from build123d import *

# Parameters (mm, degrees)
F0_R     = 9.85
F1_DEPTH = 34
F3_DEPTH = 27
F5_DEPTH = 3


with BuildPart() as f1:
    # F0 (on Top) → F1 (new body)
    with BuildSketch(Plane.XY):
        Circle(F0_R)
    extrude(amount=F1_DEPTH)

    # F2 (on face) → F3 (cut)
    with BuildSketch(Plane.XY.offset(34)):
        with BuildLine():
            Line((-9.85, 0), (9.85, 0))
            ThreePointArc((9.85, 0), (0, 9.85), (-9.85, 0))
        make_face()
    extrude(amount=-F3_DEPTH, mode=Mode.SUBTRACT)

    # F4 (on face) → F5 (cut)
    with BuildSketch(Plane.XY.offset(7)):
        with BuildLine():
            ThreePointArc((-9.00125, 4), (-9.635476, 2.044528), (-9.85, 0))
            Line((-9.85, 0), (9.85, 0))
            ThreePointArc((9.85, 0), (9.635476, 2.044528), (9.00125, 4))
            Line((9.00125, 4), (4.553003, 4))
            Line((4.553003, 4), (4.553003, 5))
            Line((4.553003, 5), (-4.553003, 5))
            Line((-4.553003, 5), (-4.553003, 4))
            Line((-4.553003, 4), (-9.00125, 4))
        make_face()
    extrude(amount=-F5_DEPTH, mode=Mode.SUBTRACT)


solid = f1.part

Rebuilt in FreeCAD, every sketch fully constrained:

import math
import FreeCAD as App
import Part
import Sketcher

V = App.Vector
Q = App.Units.Quantity

doc = App.newDocument("Part")
body = doc.addObject("PartDesign::Body", "Body")

# Sketch on XY plane
sketch1 = body.newObject("Sketcher::SketchObject", "Sketch")
sketch1.AttachmentSupport = (doc.getObject("XY_Plane"), [""])
sketch1.MapMode = "FlatFace"
sketch1.addGeometry(Part.Circle(V(0, 0, 0), V(0, 0, 1), 10), False)
sketch1.addConstraint([
    Sketcher.Constraint("Coincident", 0, 3, -1, 1),
    Sketcher.Constraint("Diameter", 0, Q("19.7 mm")),
])
pad1 = body.newObject("PartDesign::Pad", "Pad")
pad1.Profile = sketch1
pad1.Length = 34

# Sketch on XY plane
sketch2 = body.newObject("Sketcher::SketchObject", "Sketch001")
sketch2.AttachmentSupport = (doc.getObject("XY_Plane"), [""])
sketch2.MapMode = "FlatFace"
sketch2.AttachmentOffset = App.Placement(V(0, 0, 34), App.Rotation())
sketch2.addGeometry([
    Part.LineSegment(V(-10, 0, 0), V(10, 0, 0)),
    Part.ArcOfCircle(Part.Circle(V(0, 0, 0), V(0, 0, 1), 10), math.radians(0), math.radians(180)),
], False)
sketch2.addConstraint([
    Sketcher.Constraint("Coincident", 0, 1, 1, 2),
    Sketcher.Constraint("Coincident", 1, 1, 0, 2),
    Sketcher.Constraint("Horizontal", 0),
    Sketcher.Constraint("Coincident", 1, 3, -1, 1),
    Sketcher.Constraint("PointOnObject", 0, 1, -1),
    Sketcher.Constraint("Radius", 1, Q("9.85 mm")),
])
pocket1 = body.newObject("PartDesign::Pocket", "Pocket")
pocket1.Profile = sketch2
pocket1.Length = 27

# Sketch on XY plane
sketch3 = body.newObject("Sketcher::SketchObject", "Sketch002")
sketch3.AttachmentSupport = (doc.getObject("XY_Plane"), [""])
sketch3.MapMode = "FlatFace"
sketch3.AttachmentOffset = App.Placement(V(0, 0, 7), App.Rotation())
sketch3.addGeometry([
    Part.ArcOfCircle(Part.Circle(V(0.000019, -0.000004, 0), V(0, 0, 1), 9.850019), math.radians(156.040488), math.radians(179.999978)),  # 0
    Part.LineSegment(V(-9.85, 0, 0), V(9.85, 0, 0)),  # 1
    Part.ArcOfCircle(Part.Circle(V(-0.000019, -0.000004, 0), V(0, 0, 1), 9.850019), math.radians(0.000022), math.radians(23.959512)),  # 2
    Part.LineSegment(V(9.00125, 4, 0), V(4.553003, 4, 0)),  # 3
    Part.LineSegment(V(4.553003, 4, 0), V(4.553003, 5, 0)),  # 4
    Part.LineSegment(V(4.553003, 5, 0), V(-4.553003, 5, 0)),  # 5
    Part.LineSegment(V(-4.553003, 5, 0), V(-4.553003, 4, 0)),  # 6
    Part.LineSegment(V(-4.553003, 4, 0), V(-9.00125, 4, 0)),  # 7
], False)
sketch3.addConstraint([
    Sketcher.Constraint("Coincident", 0, 2, 1, 1),
    Sketcher.Constraint("Coincident", 1, 2, 2, 1),
    Sketcher.Constraint("Coincident", 2, 2, 3, 1),
    Sketcher.Constraint("Coincident", 3, 2, 4, 1),
    Sketcher.Constraint("Coincident", 4, 2, 5, 1),
    Sketcher.Constraint("Coincident", 5, 2, 6, 1),
    Sketcher.Constraint("Coincident", 6, 2, 7, 1),
    Sketcher.Constraint("Coincident", 7, 2, 0, 1),
    Sketcher.Constraint("Horizontal", 1),
    Sketcher.Constraint("Horizontal", 3),
    Sketcher.Constraint("Vertical", 4),
    Sketcher.Constraint("Horizontal", 5),
    Sketcher.Constraint("Vertical", 6),
    Sketcher.Constraint("Horizontal", 7),
    Sketcher.Constraint("Equal", 0, 2),
    Sketcher.Constraint("Symmetric", 0, 3, 2, 3, -1, 1),
    Sketcher.Constraint("Symmetric", 3, 2, 6, 2, -2),
    Sketcher.Constraint("PointOnObject", 0, 2, -1),
    Sketcher.Constraint("Horizontal", 0, 3, 2, 3),
    Sketcher.Constraint("DistanceY", 4, 1, 4, 2, Q("1 mm")),
    Sketcher.Constraint("DistanceX", 1, 1, 1, 2, Q("19.7 mm")),
    Sketcher.Constraint("DistanceY", -1, 1, 2, 2, Q("4 mm")),
    Sketcher.Constraint("Radius", 0, Q("9.850019 mm")),
    Sketcher.Constraint("DistanceX", 3, 2, 3, 1, Q("4.448247 mm")),
])
pocket2 = body.newObject("PartDesign::Pocket", "Pocket001")
pocket2.Profile = sketch3
pocket2.Length = 3

doc.recompute()
